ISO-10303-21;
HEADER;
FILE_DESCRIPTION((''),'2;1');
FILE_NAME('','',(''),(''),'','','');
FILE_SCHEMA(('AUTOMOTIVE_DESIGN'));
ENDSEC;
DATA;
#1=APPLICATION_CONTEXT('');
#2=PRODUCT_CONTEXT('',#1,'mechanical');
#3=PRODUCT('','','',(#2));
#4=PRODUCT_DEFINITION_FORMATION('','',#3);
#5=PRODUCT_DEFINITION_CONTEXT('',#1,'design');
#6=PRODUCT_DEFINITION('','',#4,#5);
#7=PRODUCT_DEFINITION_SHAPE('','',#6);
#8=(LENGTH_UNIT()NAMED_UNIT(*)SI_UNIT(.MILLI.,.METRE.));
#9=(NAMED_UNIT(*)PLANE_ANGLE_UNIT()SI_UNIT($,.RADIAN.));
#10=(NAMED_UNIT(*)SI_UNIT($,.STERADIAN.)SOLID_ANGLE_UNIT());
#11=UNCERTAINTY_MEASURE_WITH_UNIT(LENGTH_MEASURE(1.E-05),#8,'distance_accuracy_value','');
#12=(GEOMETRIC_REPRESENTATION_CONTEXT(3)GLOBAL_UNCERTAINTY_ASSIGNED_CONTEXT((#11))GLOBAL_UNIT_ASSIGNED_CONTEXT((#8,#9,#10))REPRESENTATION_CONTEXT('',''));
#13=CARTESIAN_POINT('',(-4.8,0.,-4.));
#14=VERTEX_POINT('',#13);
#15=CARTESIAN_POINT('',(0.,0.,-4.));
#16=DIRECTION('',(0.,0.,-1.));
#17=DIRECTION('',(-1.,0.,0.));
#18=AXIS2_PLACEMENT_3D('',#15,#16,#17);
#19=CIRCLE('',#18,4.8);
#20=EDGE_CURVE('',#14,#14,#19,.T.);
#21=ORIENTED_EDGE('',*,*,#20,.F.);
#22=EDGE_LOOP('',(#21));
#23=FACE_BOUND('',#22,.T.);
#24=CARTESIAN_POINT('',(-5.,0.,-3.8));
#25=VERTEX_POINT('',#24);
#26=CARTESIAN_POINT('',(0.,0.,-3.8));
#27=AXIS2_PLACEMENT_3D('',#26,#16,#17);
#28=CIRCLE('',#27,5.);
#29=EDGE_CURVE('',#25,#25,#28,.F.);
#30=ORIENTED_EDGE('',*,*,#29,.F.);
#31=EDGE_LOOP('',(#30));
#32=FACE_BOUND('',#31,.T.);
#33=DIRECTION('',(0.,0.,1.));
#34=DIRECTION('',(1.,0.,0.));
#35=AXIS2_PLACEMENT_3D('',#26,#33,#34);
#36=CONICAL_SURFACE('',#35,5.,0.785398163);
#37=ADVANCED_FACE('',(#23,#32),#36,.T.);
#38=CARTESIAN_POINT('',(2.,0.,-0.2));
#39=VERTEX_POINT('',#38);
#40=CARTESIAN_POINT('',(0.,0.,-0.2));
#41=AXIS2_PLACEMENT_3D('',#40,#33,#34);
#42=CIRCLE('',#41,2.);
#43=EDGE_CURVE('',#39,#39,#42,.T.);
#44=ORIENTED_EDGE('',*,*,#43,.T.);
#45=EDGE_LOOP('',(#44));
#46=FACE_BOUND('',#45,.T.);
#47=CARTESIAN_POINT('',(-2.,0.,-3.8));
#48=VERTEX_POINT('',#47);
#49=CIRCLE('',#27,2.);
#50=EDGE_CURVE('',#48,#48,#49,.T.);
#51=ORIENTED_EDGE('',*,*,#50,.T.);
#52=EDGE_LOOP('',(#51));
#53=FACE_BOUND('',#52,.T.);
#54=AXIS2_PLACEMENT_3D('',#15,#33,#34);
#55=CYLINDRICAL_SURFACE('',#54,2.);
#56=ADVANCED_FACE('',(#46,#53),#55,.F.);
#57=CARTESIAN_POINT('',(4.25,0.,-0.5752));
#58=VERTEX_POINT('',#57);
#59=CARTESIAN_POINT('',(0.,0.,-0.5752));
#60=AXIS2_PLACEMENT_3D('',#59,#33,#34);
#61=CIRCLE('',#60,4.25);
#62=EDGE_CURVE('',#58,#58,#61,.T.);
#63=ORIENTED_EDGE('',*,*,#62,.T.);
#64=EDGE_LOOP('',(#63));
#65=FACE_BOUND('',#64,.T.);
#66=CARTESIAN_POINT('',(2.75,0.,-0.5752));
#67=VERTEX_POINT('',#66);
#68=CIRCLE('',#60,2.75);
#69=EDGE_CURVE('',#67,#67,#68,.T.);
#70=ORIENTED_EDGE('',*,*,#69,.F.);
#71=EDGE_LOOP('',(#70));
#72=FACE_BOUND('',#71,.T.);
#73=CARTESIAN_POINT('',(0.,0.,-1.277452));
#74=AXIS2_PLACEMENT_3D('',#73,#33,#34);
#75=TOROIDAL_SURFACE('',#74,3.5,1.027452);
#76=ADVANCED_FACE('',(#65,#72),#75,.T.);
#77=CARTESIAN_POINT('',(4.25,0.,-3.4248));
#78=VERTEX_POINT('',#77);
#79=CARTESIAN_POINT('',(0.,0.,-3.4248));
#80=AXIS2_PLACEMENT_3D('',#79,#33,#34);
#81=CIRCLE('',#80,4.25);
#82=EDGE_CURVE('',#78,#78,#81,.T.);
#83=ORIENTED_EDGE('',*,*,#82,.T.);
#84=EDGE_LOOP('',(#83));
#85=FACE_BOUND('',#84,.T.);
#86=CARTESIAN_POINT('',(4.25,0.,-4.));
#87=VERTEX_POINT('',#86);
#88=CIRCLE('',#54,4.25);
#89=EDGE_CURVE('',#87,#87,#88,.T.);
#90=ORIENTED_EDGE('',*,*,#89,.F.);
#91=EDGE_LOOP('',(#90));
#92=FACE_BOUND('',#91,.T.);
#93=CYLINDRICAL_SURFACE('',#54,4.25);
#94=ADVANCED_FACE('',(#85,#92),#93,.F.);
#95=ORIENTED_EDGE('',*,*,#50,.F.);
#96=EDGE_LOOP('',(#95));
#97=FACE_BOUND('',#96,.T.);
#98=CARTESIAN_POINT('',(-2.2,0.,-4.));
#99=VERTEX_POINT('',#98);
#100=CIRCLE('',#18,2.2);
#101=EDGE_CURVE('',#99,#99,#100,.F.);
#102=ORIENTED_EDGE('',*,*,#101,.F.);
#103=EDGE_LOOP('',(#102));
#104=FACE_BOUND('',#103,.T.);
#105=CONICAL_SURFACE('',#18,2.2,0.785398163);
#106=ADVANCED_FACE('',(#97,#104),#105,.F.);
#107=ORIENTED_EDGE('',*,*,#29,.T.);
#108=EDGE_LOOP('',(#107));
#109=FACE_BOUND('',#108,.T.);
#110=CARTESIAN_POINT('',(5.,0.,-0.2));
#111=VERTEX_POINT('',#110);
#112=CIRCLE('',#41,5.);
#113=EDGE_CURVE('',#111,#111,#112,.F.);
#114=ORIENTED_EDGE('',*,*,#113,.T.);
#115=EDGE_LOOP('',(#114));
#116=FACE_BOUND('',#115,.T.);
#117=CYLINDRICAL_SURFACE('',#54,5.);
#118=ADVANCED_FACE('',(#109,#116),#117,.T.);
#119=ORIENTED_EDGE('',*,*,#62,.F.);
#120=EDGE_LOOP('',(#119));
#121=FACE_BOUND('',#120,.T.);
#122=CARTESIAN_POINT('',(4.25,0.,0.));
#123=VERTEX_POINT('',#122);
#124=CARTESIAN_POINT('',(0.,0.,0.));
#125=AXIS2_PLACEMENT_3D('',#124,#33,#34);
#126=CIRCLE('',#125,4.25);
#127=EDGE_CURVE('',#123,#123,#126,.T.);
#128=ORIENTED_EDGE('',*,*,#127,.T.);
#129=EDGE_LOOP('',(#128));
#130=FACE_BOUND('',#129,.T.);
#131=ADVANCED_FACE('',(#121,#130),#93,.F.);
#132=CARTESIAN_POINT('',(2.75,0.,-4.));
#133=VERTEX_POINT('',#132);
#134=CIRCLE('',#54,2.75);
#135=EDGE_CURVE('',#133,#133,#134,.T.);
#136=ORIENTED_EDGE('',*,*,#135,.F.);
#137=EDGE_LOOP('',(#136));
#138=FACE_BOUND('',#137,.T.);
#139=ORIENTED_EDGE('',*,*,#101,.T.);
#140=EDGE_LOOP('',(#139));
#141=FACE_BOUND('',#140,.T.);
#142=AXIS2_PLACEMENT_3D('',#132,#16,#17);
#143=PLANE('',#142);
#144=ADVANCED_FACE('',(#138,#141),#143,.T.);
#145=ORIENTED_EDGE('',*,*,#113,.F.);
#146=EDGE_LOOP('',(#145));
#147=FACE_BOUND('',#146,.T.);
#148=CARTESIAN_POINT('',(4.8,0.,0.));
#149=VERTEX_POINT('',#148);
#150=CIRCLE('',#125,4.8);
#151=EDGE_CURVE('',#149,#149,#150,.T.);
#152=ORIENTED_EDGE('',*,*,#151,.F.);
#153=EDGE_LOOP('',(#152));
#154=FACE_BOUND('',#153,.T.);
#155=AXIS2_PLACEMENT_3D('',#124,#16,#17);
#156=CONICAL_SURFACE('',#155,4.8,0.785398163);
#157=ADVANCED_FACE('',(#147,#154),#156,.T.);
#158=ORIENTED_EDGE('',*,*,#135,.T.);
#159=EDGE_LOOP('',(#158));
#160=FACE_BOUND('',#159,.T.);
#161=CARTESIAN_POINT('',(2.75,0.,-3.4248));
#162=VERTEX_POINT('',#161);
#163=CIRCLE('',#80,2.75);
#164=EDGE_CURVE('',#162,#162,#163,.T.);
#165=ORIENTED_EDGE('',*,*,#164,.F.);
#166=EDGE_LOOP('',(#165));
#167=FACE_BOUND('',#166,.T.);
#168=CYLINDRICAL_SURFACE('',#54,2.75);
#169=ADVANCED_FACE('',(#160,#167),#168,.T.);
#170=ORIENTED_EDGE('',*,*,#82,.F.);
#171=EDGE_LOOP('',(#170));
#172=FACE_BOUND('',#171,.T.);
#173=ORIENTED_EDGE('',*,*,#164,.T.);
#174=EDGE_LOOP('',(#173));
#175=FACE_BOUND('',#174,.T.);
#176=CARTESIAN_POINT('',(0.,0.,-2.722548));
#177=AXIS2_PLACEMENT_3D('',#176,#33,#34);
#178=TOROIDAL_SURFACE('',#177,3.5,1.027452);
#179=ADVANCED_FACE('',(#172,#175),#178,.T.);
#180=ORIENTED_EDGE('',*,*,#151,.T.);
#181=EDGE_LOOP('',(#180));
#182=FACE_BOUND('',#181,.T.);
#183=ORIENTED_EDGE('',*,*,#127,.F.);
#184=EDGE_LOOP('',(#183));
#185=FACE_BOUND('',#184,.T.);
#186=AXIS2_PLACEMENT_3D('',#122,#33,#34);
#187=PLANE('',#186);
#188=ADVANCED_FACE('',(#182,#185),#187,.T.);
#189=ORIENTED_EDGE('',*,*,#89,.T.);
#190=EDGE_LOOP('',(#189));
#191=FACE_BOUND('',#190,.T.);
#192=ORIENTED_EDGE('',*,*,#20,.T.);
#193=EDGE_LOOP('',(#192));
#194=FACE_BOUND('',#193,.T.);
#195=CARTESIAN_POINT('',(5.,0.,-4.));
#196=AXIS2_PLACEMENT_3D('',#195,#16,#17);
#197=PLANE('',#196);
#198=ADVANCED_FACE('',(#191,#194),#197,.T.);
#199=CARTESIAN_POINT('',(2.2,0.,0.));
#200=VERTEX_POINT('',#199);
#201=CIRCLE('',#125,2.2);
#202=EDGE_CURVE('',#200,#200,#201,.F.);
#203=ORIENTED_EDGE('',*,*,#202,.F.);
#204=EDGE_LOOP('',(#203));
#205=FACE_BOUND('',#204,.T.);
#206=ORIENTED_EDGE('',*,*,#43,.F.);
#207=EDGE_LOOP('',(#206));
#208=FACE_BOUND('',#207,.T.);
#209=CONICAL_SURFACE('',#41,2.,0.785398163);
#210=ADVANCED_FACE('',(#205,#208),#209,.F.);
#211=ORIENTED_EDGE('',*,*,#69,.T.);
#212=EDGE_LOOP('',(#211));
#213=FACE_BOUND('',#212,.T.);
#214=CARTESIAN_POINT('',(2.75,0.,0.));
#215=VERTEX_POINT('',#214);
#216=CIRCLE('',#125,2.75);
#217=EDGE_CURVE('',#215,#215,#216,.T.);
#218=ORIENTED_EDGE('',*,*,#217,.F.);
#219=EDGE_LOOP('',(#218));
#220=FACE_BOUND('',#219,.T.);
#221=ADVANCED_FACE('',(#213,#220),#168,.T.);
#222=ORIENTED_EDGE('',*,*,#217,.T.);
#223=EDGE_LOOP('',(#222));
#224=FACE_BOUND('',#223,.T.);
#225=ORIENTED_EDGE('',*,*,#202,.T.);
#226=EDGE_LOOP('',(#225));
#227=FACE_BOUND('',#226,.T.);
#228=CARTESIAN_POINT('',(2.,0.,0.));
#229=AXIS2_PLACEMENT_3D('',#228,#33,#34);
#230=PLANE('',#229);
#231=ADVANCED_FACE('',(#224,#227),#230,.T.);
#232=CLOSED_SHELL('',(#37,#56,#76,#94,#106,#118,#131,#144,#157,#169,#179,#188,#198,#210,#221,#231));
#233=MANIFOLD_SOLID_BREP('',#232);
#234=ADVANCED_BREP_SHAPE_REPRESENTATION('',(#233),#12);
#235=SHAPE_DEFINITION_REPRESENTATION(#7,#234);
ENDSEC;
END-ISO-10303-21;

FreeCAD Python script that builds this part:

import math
import FreeCAD as App
import Part
import Sketcher
from FreeCAD import Vector


def edges_at(feature, points):
    """Names of the edges that pass closest to the given points."""
    edges = feature.Shape.Edges
    near = lambda p: min(range(len(edges)), key=lambda i: edges[i].distToShape(Part.Vertex(*p))[0])
    return sorted({f"Edge{near(p) + 1}" for p in points})

doc = App.newDocument("Part")
body = doc.addObject("PartDesign::Body", "Body")

# Sketch on XZ plane
sketch1 = body.newObject("Sketcher::SketchObject", "Sketch")
sketch1.AttachmentSupport = (doc.getObject("XZ_Plane"), [""])
sketch1.MapMode = "FlatFace"
sketch1.addGeometry([
    Part.LineSegment(Vector(2.8, -3.4, 0), Vector(2.8, -4, 0)),  # 0
    Part.LineSegment(Vector(2.8, -4, 0), Vector(2, -4, 0)),  # 1
    Part.LineSegment(Vector(2, -4, 0), Vector(2, 0, 0)),  # 2
    Part.LineSegment(Vector(2, 0, 0), Vector(2.8, 0, 0)),  # 3
    Part.LineSegment(Vector(2.8, 0, 0), Vector(2.8, -0.6, 0)),  # 4
    Part.ArcOfCircle(Part.Circle(Vector(3.5, -1.3, 0), Vector(0, 0, 1), 1), math.radians(43), math.radians(137)),  # 5
    Part.LineSegment(Vector(4.2, -0.6, 0), Vector(4.2, 0, 0)),  # 6
    Part.LineSegment(Vector(4.2, 0, 0), Vector(5, 0, 0)),  # 7
    Part.LineSegment(Vector(5, 0, 0), Vector(5, -4, 0)),  # 8
    Part.LineSegment(Vector(5, -4, 0), Vector(4.2, -4, 0)),  # 9
    Part.LineSegment(Vector(4.2, -4, 0), Vector(4.2, -3.4, 0)),  # 10
    Part.ArcOfCircle(Part.Circle(Vector(3.5, -2.7, 0), Vector(0, 0, 1), 1), math.radians(-137), math.radians(-43)),  # 11
], False)
sketch1.addConstraint([
    Sketcher.Constraint("Coincident", 0, 2, 1, 1),
    Sketcher.Constraint("Coincident", 1, 2, 2, 1),
    Sketcher.Constraint("Coincident", 2, 2, 3, 1),
    Sketcher.Constraint("Coincident", 3, 2, 4, 1),
    Sketcher.Constraint("Coincident", 4, 2, 5, 2),
    Sketcher.Constraint("Coincident", 5, 1, 6, 1),
    Sketcher.Constraint("Coincident", 6, 2, 7, 1),
    Sketcher.Constraint("Coincident", 7, 2, 8, 1),
    Sketcher.Constraint("Coincident", 8, 2, 9, 1),
    Sketcher.Constraint("Coincident", 9, 2, 10, 1),
    Sketcher.Constraint("Coincident", 10, 2, 11, 2),
    Sketcher.Constraint("Coincident", 11, 1, 0, 1),
    Sketcher.Constraint("Vertical", 0),
    Sketcher.Constraint("Horizontal", 1),
    Sketcher.Constraint("Vertical", 2),
    Sketcher.Constraint("Horizontal", 3),
    Sketcher.Constraint("Vertical", 4),
    Sketcher.Constraint("Vertical", 6),
    Sketcher.Constraint("Horizontal", 7),
    Sketcher.Constraint("Vertical", 8),
    Sketcher.Constraint("Horizontal", 9),
    Sketcher.Constraint("Vertical", 10),
    Sketcher.Constraint("Equal", 5, 11),
    Sketcher.Constraint("PointOnObject", 2, 2, -1),
    Sketcher.Constraint("PointOnObject", 6, 2, -1),
    Sketcher.Constraint("Horizontal", 4, 2, 5, 1),
    Sketcher.Constraint("Horizontal", 1, 2, 8, 2),
    Sketcher.Constraint("Horizontal", 10, 2, 11, 1),
    Sketcher.Constraint("Vertical", 5, 3, 11, 3),
    Sketcher.Constraint("Vertical", 0, 2, 3, 2),
    Sketcher.Constraint("Equal", 3, 7),
    Sketcher.Constraint("Equal", 0, 4),
    Sketcher.Constraint("DistanceY", 2, 1, 2, 2, 4.0),
    Sketcher.Constraint("DistanceX", -1, 1, 1, 2, 2.0),
    Sketcher.Constraint("DistanceX", -1, 1, 7, 2, 5.0),
    Sketcher.Constraint("DistanceX", 1, 2, 1, 1, 0.75),
    Sketcher.Constraint("DistanceY", 0, 2, 0, 1, 0.5752),
    Sketcher.Constraint("Radius", 5, 1.027452),
])
revolution = body.newObject("PartDesign::Revolution", "Revolution")
revolution.Profile = sketch1
revolution.ReferenceAxis = (sketch1, ["V_Axis"])
revolution.Angle = 360
doc.recompute()

chamfer = body.newObject("PartDesign::Chamfer", "Chamfer")
chamfer.Base = (revolution, edges_at(revolution, [(-5, 0, -4)]))
chamfer.Size = 0.2
doc.recompute()

chamfer2 = body.newObject("PartDesign::Chamfer", "Chamfer001")
chamfer2.Base = (chamfer, edges_at(chamfer, [(-2, 0, -4)]))
chamfer2.Size = 0.2
doc.recompute()

chamfer3 = body.newObject("PartDesign::Chamfer", "Chamfer002")
chamfer3.Base = (chamfer2, edges_at(chamfer2, [(-5, 0, 0)]))
chamfer3.Size = 0.2
doc.recompute()

chamfer4 = body.newObject("PartDesign::Chamfer", "Chamfer003")
chamfer4.Base = (chamfer3, edges_at(chamfer3, [(-2, 0, 0)]))
chamfer4.Size = 0.2

doc.recompute()
